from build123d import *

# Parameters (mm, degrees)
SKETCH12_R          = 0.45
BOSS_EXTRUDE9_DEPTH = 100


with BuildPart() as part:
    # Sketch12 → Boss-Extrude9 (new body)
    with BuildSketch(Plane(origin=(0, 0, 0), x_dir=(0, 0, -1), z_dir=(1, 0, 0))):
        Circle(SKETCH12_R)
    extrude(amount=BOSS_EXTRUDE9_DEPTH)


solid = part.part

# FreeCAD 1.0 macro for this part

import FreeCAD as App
import Part
import Sketcher
Q = App.Units.Quantity

doc = App.newDocument("Part")
body = doc.addObject("PartDesign::Body", "Body")

# Sketch on YZ plane
sketch1 = body.newObject("Sketcher::SketchObject", "Sketch")
sketch1.AttachmentSupport = (doc.getObject("YZ_Plane"), [""])
sketch1.MapMode = "FlatFace"
sketch1.addGeometry(Part.Circle(App.Vector(0, 0, 0), App.Vector(0, 0, 1), 0.45), False)
sketch1.addConstraint([
    Sketcher.Constraint("Coincident", 0, 3, -1, 1),
    Sketcher.Constraint("Diameter", 0, Q("0.9 mm")),
])
pad1 = body.newObject("PartDesign::Pad", "Pad")
pad1.Profile = sketch1
pad1.Length = 100

doc.recompute()
